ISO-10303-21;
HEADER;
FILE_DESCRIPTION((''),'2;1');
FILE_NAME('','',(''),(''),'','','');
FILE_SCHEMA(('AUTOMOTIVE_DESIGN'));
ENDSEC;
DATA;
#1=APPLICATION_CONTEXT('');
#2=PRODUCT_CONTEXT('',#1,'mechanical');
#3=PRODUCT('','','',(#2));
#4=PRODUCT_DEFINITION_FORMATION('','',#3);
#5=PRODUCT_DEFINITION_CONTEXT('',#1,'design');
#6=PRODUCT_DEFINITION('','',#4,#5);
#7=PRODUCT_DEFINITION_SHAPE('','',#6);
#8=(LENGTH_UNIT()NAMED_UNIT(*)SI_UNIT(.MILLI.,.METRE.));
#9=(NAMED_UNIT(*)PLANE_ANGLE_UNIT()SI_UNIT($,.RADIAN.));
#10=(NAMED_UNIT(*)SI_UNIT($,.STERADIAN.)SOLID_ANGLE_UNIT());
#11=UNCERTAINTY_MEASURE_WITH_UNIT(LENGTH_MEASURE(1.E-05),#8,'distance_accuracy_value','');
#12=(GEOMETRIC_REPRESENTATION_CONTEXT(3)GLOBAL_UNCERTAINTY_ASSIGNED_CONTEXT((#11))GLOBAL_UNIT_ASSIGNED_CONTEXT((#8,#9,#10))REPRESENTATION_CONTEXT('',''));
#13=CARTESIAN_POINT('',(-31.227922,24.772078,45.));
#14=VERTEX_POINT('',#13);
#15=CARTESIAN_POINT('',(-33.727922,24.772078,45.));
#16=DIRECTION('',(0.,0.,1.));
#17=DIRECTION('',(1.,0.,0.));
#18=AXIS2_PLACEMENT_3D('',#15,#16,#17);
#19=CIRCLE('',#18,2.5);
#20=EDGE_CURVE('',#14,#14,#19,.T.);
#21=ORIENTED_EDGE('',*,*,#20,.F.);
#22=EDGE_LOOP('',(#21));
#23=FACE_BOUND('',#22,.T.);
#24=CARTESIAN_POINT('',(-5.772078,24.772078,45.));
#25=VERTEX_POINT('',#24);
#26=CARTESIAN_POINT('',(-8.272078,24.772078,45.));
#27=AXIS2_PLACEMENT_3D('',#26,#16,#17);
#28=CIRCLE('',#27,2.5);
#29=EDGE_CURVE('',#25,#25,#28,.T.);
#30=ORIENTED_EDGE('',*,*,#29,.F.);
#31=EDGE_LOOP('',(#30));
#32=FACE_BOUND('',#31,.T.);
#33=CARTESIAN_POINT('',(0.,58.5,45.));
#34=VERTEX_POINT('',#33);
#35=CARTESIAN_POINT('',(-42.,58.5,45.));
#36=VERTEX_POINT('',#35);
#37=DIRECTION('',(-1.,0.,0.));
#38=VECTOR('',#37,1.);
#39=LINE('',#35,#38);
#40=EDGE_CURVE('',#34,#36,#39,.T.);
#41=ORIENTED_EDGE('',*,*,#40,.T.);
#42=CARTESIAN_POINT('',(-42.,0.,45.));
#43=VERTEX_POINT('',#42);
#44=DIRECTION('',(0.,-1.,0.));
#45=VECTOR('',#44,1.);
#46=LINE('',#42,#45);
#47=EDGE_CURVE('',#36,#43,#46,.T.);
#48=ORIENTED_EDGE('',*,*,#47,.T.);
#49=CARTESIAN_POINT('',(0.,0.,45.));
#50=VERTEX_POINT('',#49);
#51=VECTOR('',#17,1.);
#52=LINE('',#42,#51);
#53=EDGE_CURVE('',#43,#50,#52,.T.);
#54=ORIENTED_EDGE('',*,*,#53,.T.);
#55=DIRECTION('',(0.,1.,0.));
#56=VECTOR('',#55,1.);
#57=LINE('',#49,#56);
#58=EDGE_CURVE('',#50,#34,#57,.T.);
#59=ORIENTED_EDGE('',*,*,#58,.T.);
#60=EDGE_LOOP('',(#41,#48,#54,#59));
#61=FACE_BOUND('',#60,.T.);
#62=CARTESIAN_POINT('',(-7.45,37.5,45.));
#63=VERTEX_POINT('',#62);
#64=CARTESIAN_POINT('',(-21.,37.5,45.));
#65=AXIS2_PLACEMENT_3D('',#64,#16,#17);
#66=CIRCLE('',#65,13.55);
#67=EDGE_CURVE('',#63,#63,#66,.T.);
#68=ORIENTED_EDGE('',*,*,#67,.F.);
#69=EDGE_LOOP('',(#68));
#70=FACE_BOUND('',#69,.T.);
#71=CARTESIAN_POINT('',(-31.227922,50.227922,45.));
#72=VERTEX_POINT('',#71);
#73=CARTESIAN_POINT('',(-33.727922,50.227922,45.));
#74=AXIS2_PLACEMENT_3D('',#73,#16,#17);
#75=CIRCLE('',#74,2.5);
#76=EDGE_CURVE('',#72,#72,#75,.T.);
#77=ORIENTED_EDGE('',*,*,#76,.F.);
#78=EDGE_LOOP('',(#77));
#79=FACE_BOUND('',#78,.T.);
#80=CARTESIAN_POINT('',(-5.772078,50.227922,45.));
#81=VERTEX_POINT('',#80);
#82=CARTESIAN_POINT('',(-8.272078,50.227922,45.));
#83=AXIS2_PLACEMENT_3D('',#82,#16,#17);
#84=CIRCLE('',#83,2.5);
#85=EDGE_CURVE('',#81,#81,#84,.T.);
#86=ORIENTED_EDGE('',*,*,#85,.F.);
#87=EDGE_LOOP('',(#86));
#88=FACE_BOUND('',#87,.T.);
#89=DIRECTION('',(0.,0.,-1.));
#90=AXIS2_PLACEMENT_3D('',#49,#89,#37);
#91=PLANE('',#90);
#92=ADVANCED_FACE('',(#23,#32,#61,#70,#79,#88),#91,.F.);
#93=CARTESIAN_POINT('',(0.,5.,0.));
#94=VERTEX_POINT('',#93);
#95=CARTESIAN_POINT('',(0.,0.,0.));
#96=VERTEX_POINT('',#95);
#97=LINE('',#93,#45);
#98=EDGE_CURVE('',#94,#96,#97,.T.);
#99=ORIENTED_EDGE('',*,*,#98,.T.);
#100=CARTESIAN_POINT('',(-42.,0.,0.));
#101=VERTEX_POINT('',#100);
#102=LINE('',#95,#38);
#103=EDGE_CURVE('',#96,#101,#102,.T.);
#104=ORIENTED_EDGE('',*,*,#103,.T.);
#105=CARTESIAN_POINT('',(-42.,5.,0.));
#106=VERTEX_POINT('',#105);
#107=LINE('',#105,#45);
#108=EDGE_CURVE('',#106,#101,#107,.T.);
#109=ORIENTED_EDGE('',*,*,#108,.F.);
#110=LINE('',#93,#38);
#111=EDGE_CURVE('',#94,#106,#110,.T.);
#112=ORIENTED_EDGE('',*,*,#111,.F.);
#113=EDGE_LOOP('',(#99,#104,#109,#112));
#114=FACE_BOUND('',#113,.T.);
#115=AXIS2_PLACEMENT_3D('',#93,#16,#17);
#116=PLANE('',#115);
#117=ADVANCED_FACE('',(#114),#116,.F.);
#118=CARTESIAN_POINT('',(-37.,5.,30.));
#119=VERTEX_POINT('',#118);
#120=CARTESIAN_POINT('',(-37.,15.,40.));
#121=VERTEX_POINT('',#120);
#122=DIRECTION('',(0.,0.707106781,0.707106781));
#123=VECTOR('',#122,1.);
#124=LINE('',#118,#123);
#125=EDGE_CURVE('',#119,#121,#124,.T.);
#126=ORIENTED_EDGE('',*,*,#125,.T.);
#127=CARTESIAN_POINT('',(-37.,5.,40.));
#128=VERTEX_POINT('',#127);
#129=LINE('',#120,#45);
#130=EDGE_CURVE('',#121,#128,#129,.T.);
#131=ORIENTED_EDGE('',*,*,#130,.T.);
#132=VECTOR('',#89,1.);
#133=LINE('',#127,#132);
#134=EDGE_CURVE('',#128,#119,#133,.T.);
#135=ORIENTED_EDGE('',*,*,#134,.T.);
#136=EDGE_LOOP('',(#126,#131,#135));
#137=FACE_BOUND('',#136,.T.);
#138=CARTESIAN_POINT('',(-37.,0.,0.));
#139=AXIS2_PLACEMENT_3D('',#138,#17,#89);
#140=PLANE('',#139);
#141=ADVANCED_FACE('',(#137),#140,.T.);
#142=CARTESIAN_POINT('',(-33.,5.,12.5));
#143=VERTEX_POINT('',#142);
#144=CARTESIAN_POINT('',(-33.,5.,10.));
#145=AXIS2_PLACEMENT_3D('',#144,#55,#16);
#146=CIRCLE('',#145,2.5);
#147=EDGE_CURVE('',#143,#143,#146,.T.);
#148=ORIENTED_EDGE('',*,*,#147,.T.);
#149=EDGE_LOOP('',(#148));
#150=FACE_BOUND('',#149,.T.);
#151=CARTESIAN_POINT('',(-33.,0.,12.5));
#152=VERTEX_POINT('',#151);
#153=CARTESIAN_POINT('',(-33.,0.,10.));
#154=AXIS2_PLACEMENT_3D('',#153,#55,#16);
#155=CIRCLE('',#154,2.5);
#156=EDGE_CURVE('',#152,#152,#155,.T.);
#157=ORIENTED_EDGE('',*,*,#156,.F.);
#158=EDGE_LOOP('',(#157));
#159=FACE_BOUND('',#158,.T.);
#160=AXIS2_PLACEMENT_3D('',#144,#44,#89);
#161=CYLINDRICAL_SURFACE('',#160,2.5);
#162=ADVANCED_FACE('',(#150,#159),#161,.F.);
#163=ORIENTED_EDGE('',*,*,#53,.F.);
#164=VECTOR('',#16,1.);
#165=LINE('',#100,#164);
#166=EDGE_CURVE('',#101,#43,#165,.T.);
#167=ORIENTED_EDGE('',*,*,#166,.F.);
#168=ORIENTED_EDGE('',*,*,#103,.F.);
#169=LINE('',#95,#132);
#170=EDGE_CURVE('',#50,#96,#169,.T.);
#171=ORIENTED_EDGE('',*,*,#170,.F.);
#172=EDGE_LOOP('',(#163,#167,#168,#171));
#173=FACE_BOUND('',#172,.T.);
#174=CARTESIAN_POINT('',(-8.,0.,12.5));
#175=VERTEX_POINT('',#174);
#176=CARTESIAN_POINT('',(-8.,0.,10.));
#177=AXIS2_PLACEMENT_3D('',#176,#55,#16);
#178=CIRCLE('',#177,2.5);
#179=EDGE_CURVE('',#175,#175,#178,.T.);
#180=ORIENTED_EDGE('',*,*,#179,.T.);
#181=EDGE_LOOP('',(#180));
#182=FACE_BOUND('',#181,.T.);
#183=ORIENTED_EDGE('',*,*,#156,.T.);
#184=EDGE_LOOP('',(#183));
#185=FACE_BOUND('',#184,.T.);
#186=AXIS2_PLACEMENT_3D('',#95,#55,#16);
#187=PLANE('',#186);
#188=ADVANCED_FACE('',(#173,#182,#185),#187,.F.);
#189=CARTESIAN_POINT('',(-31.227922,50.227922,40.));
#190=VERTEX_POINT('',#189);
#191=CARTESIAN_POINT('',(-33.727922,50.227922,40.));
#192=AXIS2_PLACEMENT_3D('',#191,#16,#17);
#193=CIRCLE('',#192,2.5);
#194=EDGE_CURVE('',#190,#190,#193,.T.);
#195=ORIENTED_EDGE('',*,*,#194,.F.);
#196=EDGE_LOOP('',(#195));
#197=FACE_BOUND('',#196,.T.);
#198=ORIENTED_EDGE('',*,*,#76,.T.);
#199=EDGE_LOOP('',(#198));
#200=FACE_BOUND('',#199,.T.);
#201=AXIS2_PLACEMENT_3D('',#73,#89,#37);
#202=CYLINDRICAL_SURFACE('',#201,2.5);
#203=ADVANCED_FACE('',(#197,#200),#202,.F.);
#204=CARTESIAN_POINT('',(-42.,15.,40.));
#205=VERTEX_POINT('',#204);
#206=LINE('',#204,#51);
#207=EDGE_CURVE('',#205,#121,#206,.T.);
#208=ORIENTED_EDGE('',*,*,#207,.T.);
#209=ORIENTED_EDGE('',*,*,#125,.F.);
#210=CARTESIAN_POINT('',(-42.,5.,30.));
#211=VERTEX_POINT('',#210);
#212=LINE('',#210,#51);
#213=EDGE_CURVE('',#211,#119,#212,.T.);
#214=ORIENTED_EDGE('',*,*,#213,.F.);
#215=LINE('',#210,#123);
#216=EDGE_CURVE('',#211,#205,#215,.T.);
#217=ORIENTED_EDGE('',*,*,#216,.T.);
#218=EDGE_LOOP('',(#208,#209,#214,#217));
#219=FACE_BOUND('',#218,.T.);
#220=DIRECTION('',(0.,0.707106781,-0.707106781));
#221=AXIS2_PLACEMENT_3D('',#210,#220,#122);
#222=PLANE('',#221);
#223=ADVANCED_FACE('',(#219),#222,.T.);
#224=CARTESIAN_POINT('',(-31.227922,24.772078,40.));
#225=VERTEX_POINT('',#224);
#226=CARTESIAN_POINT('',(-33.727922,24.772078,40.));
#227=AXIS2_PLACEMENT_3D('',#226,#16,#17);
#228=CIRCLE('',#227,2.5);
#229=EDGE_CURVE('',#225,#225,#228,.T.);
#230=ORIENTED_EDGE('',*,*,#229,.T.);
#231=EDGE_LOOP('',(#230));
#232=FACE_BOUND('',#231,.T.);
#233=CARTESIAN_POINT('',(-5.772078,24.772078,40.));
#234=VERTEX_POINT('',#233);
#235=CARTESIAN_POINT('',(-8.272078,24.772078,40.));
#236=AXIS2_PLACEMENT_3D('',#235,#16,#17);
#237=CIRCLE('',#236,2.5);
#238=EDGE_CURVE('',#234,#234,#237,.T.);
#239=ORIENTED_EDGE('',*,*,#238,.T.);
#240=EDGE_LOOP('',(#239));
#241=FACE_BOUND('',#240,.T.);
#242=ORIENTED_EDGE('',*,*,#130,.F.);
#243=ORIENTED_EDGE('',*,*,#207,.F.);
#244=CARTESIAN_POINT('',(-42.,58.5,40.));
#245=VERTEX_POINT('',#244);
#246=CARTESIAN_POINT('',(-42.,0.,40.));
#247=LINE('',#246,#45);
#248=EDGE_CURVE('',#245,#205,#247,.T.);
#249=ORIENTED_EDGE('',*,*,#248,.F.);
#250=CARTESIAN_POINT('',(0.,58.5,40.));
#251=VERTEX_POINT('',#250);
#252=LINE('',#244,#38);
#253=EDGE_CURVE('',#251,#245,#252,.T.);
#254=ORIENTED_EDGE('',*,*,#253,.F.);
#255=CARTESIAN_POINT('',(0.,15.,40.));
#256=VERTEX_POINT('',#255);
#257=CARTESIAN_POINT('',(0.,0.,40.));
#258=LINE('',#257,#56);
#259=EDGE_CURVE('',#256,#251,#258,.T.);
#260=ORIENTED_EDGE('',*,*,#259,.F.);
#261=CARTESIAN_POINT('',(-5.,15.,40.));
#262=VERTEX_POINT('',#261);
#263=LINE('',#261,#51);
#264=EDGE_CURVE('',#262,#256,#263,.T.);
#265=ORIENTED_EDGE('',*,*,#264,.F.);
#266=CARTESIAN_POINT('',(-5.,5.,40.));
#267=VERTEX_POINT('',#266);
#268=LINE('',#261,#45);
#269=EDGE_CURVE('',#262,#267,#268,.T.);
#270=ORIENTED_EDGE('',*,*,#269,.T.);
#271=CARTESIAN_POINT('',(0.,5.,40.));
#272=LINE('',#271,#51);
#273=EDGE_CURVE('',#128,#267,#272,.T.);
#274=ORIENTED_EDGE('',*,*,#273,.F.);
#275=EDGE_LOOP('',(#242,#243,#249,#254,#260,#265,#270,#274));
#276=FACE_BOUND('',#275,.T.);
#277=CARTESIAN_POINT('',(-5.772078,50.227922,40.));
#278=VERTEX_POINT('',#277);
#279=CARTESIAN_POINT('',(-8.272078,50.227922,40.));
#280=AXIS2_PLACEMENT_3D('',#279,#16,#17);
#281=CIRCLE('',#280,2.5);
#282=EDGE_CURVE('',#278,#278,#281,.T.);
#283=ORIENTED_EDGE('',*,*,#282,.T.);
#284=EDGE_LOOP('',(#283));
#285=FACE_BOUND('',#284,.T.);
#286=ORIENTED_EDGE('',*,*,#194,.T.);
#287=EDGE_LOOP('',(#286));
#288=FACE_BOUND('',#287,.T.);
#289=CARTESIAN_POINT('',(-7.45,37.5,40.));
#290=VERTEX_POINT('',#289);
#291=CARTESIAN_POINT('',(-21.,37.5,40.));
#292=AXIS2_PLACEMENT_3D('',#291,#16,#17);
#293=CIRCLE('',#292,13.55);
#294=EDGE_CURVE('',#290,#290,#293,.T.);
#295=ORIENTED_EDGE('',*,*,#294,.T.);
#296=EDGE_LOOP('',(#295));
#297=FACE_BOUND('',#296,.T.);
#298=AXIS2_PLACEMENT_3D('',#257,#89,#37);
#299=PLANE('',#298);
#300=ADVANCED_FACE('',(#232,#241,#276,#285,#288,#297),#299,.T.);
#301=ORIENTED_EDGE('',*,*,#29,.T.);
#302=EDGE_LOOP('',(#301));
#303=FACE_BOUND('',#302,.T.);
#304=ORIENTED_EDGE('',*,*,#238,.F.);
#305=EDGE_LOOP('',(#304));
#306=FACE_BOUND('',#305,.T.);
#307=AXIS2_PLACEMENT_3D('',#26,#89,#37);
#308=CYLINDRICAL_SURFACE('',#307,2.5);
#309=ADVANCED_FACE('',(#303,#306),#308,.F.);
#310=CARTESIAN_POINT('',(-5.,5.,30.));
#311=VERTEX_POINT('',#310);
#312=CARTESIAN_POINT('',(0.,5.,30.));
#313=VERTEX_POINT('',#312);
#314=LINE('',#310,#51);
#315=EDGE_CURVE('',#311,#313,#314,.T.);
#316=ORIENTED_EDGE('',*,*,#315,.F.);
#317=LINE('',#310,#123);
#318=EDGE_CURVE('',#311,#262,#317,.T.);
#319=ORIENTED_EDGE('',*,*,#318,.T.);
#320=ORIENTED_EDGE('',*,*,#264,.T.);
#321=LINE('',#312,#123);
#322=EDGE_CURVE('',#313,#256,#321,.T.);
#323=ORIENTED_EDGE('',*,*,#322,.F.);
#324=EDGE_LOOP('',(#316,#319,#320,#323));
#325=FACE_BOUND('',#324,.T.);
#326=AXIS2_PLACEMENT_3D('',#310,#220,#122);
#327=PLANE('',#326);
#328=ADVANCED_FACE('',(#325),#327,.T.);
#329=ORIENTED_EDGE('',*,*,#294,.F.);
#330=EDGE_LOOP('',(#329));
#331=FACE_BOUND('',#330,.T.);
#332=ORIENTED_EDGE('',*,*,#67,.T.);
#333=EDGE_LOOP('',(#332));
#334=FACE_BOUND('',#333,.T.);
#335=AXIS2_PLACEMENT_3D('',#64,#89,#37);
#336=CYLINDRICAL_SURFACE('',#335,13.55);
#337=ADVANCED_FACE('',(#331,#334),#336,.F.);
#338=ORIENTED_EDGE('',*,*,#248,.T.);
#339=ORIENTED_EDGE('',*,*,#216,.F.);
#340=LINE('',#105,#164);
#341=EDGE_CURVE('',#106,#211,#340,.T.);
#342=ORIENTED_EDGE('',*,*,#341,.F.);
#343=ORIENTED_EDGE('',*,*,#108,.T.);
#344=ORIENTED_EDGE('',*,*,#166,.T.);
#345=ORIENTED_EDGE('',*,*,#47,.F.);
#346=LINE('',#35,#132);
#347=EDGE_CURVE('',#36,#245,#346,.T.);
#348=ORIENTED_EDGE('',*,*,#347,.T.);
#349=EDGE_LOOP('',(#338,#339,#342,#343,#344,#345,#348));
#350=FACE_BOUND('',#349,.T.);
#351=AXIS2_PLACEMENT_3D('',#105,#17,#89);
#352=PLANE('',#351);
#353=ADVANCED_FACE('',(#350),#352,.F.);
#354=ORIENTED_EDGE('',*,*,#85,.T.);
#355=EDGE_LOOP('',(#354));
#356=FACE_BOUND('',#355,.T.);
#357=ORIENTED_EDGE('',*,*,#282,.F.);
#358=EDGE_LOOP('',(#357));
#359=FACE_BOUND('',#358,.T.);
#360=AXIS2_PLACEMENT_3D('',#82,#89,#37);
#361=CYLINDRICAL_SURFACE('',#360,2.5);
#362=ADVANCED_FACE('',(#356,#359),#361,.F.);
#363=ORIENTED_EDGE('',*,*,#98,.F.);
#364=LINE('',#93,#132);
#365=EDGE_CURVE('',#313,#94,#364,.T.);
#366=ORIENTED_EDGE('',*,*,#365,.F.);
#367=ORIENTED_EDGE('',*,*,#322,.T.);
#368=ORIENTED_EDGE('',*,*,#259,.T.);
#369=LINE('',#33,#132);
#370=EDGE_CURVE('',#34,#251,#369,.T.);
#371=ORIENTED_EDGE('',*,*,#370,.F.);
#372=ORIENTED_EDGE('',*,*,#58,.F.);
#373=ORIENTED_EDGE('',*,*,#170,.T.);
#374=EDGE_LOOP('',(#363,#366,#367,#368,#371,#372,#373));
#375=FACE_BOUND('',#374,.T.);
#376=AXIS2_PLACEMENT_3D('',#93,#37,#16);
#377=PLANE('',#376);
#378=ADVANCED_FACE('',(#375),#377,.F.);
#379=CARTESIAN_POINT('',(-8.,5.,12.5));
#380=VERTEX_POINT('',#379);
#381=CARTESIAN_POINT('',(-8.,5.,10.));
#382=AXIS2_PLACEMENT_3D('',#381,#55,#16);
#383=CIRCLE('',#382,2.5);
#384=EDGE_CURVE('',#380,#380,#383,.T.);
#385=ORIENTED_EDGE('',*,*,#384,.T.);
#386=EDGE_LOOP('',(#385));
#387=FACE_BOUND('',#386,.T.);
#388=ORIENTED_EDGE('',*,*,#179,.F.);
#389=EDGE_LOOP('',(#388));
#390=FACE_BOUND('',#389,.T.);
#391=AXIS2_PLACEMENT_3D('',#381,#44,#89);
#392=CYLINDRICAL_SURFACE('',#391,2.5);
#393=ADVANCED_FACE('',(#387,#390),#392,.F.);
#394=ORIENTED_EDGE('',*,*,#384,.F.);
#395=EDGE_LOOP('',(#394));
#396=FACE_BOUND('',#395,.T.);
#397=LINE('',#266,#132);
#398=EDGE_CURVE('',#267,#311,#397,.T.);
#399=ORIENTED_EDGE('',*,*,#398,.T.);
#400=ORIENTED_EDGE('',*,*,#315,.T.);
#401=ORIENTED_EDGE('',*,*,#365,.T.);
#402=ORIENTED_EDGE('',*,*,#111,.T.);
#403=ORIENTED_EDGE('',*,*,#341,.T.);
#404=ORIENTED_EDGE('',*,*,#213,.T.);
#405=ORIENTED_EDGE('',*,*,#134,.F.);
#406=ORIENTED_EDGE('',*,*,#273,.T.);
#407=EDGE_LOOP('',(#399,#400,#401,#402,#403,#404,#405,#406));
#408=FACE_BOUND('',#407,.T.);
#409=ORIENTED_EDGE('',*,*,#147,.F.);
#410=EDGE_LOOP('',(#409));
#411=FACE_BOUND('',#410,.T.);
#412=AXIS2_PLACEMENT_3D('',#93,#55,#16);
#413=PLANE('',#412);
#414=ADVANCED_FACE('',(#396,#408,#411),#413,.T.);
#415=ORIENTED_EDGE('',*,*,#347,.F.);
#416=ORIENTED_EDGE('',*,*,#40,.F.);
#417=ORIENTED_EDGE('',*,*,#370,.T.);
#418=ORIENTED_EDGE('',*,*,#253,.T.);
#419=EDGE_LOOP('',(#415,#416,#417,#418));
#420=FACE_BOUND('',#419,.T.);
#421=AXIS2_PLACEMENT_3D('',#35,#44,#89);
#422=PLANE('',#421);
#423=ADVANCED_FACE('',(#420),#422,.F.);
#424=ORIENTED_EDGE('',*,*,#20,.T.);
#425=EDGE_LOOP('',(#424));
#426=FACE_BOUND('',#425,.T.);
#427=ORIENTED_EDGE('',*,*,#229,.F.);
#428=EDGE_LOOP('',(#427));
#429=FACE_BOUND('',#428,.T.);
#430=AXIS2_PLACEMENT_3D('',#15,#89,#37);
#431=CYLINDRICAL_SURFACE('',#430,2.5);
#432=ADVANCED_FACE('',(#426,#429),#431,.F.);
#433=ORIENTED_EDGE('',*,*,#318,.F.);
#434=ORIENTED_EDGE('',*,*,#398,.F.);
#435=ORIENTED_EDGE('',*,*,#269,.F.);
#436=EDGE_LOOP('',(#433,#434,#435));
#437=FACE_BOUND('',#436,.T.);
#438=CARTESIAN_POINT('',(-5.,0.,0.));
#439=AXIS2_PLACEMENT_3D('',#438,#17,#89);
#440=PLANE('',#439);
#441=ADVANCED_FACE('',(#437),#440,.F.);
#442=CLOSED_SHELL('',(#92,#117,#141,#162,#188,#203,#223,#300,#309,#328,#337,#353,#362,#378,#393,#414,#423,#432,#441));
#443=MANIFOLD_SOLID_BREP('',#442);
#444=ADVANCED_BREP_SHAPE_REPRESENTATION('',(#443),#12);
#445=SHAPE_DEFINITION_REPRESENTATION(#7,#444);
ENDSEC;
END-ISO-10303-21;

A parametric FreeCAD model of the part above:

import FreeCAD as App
import Part
import Sketcher
from FreeCAD import Vector


def add_polygon(sketch, points):
    """Adds a closed chain of lines whose ends are joined by coincident constraints."""
    first, n = sketch.GeometryCount, len(points)
    for a, b in zip(points, points[1:] + points[:1]):
        sketch.addGeometry(Part.LineSegment(App.Vector(*a, 0), App.Vector(*b, 0)), False)
    for i in range(n):
        sketch.addConstraint(Sketcher.Constraint("Coincident", first + i, 2, first + (i + 1) % n, 1))

doc = App.newDocument("Part")
body = doc.addObject("PartDesign::Body", "Body")

# Sketch on XZ plane
sketch1 = body.newObject("Sketcher::SketchObject", "Sketch")
sketch1.AttachmentSupport = (doc.getObject("XZ_Plane"), [""])
sketch1.MapMode = "FlatFace"
add_polygon(sketch1, [(-42, 40), (0, 40), (0, 0), (-42, 0)])  # lines 0-3
sketch1.addGeometry(Part.Circle(Vector(-8, 10, 0), Vector(0, 0, 1), 2.5), False)  # 4
sketch1.addGeometry(Part.Circle(Vector(-33, 10, 0), Vector(0, 0, 1), 2.5), False)  # 5
sketch1.addConstraint(Sketcher.Constraint("Horizontal", 0))
sketch1.addConstraint(Sketcher.Constraint("Vertical", 1))
sketch1.addConstraint(Sketcher.Constraint("Horizontal", 2))
sketch1.addConstraint(Sketcher.Constraint("Vertical", 3))
sketch1.addConstraint(Sketcher.Constraint("Coincident", 1, 2, -1, 1))
sketch1.addConstraint(Sketcher.Constraint("Equal", 4, 5))
sketch1.addConstraint(Sketcher.Constraint("Horizontal", 4, 3, 5, 3))
sketch1.addConstraint(Sketcher.Constraint("Diameter", 4, 5.0))
sketch1.addConstraint(Sketcher.Constraint("DistanceX", 0, 1, 0, 2, 42.0))
sketch1.addConstraint(Sketcher.Constraint("DistanceY", 1, 2, 1, 1, 40.0))
sketch1.addConstraint(Sketcher.Constraint("DistanceX", 4, 3, -1, 1, 8.0))
sketch1.addConstraint(Sketcher.Constraint("DistanceY", -1, 1, 4, 3, 10.0))
sketch1.addConstraint(Sketcher.Constraint("DistanceX", 5, 3, -1, 1, 33.0))
pad1 = body.newObject("PartDesign::Pad", "Pad")
pad1.Profile = sketch1
pad1.Length = 5
pad1.Reversed = True

# Sketch on XY plane
sketch2 = body.newObject("Sketcher::SketchObject", "Sketch001")
sketch2.AttachmentSupport = (doc.getObject("XY_Plane"), [""])
sketch2.MapMode = "FlatFace"
sketch2.AttachmentOffset = App.Placement(Vector(0, 0, 40), App.Rotation())
add_polygon(sketch2, [(-42, 58.5), (-42, 0), (0, 0), (0, 58.5)])  # lines 0-3
sketch2.addGeometry(Part.Circle(Vector(-33.727922, 24.772078, 0), Vector(0, 0, 1), 2.5), False)  # 4
sketch2.addGeometry(Part.Circle(Vector(-21, 37.5, 0), Vector(0, 0, 1), 13.55), False)  # 5
sketch2.addGeometry(Part.Circle(Vector(-8.272078, 24.772078, 0), Vector(0, 0, 1), 2.5), False)  # 6
sketch2.addGeometry(Part.Circle(Vector(-33.727922, 50.227922, 0), Vector(0, 0, 1), 2.5), False)  # 7
sketch2.addGeometry(Part.Circle(Vector(-8.272078, 50.227922, 0), Vector(0, 0, 1), 2.5), False)  # 8
sketch2.addConstraint(Sketcher.Constraint("Vertical", 0))
sketch2.addConstraint(Sketcher.Constraint("Horizontal", 1))
sketch2.addConstraint(Sketcher.Constraint("Vertical", 2))
sketch2.addConstraint(Sketcher.Constraint("Horizontal", 3))
sketch2.addConstraint(Sketcher.Constraint("Coincident", 1, 2, -1, 1))
sketch2.addConstraint(Sketcher.Constraint("Equal", 4, 6))
sketch2.addConstraint(Sketcher.Constraint("Equal", 6, 7))
sketch2.addConstraint(Sketcher.Constraint("Equal", 7, 8))
sketch2.addConstraint(Sketcher.Constraint("Horizontal", 4, 3, 6, 3))
sketch2.addConstraint(Sketcher.Constraint("Horizontal", 7, 3, 8, 3))
sketch2.addConstraint(Sketcher.Constraint("Vertical", 4, 3, 7, 3))
sketch2.addConstraint(Sketcher.Constraint("Vertical", 6, 3, 8, 3))
sketch2.addConstraint(Sketcher.Constraint("Diameter", 4, 5.0))
sketch2.addConstraint(Sketcher.Constraint("Diameter", 5, 27.1))
sketch2.addConstraint(Sketcher.Constraint("DistanceX", 1, 1, 1, 2, 42.0))
sketch2.addConstraint(Sketcher.Constraint("DistanceY", 0, 2, 0, 1, 58.5))
sketch2.addConstraint(Sketcher.Constraint("DistanceX", 5, 3, -1, 1, 21.0))
sketch2.addConstraint(Sketcher.Constraint("DistanceY", 5, 3, 2, 2, 21.0))
sketch2.addConstraint(Sketcher.Constraint("DistanceX", 4, 3, -1, 1, 33.727922))
sketch2.addConstraint(Sketcher.Constraint("DistanceY", -1, 1, 4, 3, 24.772078))
sketch2.addConstraint(Sketcher.Constraint("DistanceX", 6, 3, -1, 1, 8.272078))
sketch2.addConstraint(Sketcher.Constraint("DistanceY", -1, 1, 7, 3, 50.227922))
pad2 = body.newObject("PartDesign::Pad", "Pad001")
pad2.Profile = sketch2
pad2.Length = 5

# Sketch on YZ plane
sketch3 = body.newObject("Sketcher::SketchObject", "Sketch002")
sketch3.AttachmentSupport = (doc.getObject("YZ_Plane"), [""])
sketch3.MapMode = "FlatFace"
add_polygon(sketch3, [(15, 40), (5, 40), (5, 30)])  # lines 0-2
sketch3.addConstraint(Sketcher.Constraint("Horizontal", 0))
sketch3.addConstraint(Sketcher.Constraint("Vertical", 1))
sketch3.addConstraint(Sketcher.Constraint("Equal", 0, 1))
sketch3.addConstraint(Sketcher.Constraint("DistanceX", 0, 2, 0, 1, 10.0))
sketch3.addConstraint(Sketcher.Constraint("DistanceX", -1, 1, 0, 2, 5.0))
sketch3.addConstraint(Sketcher.Constraint("DistanceY", -1, 1, 0, 2, 40.0))
pad3 = body.newObject("PartDesign::Pad", "Pad002")
pad3.Profile = sketch3
pad3.Length = 5
pad3.Reversed = True
doc.recompute()

linearpattern = body.newObject("PartDesign::LinearPattern", "LinearPattern")
linearpattern.Originals = [pad3]
linearpattern.Direction = (doc.getObject("X_Axis"), [""])
linearpattern.Mode = "offset"
linearpattern.Offset = 37
linearpattern.Occurrences = 2
linearpattern.Reversed = True
body.Tip = linearpattern

doc.recompute()
